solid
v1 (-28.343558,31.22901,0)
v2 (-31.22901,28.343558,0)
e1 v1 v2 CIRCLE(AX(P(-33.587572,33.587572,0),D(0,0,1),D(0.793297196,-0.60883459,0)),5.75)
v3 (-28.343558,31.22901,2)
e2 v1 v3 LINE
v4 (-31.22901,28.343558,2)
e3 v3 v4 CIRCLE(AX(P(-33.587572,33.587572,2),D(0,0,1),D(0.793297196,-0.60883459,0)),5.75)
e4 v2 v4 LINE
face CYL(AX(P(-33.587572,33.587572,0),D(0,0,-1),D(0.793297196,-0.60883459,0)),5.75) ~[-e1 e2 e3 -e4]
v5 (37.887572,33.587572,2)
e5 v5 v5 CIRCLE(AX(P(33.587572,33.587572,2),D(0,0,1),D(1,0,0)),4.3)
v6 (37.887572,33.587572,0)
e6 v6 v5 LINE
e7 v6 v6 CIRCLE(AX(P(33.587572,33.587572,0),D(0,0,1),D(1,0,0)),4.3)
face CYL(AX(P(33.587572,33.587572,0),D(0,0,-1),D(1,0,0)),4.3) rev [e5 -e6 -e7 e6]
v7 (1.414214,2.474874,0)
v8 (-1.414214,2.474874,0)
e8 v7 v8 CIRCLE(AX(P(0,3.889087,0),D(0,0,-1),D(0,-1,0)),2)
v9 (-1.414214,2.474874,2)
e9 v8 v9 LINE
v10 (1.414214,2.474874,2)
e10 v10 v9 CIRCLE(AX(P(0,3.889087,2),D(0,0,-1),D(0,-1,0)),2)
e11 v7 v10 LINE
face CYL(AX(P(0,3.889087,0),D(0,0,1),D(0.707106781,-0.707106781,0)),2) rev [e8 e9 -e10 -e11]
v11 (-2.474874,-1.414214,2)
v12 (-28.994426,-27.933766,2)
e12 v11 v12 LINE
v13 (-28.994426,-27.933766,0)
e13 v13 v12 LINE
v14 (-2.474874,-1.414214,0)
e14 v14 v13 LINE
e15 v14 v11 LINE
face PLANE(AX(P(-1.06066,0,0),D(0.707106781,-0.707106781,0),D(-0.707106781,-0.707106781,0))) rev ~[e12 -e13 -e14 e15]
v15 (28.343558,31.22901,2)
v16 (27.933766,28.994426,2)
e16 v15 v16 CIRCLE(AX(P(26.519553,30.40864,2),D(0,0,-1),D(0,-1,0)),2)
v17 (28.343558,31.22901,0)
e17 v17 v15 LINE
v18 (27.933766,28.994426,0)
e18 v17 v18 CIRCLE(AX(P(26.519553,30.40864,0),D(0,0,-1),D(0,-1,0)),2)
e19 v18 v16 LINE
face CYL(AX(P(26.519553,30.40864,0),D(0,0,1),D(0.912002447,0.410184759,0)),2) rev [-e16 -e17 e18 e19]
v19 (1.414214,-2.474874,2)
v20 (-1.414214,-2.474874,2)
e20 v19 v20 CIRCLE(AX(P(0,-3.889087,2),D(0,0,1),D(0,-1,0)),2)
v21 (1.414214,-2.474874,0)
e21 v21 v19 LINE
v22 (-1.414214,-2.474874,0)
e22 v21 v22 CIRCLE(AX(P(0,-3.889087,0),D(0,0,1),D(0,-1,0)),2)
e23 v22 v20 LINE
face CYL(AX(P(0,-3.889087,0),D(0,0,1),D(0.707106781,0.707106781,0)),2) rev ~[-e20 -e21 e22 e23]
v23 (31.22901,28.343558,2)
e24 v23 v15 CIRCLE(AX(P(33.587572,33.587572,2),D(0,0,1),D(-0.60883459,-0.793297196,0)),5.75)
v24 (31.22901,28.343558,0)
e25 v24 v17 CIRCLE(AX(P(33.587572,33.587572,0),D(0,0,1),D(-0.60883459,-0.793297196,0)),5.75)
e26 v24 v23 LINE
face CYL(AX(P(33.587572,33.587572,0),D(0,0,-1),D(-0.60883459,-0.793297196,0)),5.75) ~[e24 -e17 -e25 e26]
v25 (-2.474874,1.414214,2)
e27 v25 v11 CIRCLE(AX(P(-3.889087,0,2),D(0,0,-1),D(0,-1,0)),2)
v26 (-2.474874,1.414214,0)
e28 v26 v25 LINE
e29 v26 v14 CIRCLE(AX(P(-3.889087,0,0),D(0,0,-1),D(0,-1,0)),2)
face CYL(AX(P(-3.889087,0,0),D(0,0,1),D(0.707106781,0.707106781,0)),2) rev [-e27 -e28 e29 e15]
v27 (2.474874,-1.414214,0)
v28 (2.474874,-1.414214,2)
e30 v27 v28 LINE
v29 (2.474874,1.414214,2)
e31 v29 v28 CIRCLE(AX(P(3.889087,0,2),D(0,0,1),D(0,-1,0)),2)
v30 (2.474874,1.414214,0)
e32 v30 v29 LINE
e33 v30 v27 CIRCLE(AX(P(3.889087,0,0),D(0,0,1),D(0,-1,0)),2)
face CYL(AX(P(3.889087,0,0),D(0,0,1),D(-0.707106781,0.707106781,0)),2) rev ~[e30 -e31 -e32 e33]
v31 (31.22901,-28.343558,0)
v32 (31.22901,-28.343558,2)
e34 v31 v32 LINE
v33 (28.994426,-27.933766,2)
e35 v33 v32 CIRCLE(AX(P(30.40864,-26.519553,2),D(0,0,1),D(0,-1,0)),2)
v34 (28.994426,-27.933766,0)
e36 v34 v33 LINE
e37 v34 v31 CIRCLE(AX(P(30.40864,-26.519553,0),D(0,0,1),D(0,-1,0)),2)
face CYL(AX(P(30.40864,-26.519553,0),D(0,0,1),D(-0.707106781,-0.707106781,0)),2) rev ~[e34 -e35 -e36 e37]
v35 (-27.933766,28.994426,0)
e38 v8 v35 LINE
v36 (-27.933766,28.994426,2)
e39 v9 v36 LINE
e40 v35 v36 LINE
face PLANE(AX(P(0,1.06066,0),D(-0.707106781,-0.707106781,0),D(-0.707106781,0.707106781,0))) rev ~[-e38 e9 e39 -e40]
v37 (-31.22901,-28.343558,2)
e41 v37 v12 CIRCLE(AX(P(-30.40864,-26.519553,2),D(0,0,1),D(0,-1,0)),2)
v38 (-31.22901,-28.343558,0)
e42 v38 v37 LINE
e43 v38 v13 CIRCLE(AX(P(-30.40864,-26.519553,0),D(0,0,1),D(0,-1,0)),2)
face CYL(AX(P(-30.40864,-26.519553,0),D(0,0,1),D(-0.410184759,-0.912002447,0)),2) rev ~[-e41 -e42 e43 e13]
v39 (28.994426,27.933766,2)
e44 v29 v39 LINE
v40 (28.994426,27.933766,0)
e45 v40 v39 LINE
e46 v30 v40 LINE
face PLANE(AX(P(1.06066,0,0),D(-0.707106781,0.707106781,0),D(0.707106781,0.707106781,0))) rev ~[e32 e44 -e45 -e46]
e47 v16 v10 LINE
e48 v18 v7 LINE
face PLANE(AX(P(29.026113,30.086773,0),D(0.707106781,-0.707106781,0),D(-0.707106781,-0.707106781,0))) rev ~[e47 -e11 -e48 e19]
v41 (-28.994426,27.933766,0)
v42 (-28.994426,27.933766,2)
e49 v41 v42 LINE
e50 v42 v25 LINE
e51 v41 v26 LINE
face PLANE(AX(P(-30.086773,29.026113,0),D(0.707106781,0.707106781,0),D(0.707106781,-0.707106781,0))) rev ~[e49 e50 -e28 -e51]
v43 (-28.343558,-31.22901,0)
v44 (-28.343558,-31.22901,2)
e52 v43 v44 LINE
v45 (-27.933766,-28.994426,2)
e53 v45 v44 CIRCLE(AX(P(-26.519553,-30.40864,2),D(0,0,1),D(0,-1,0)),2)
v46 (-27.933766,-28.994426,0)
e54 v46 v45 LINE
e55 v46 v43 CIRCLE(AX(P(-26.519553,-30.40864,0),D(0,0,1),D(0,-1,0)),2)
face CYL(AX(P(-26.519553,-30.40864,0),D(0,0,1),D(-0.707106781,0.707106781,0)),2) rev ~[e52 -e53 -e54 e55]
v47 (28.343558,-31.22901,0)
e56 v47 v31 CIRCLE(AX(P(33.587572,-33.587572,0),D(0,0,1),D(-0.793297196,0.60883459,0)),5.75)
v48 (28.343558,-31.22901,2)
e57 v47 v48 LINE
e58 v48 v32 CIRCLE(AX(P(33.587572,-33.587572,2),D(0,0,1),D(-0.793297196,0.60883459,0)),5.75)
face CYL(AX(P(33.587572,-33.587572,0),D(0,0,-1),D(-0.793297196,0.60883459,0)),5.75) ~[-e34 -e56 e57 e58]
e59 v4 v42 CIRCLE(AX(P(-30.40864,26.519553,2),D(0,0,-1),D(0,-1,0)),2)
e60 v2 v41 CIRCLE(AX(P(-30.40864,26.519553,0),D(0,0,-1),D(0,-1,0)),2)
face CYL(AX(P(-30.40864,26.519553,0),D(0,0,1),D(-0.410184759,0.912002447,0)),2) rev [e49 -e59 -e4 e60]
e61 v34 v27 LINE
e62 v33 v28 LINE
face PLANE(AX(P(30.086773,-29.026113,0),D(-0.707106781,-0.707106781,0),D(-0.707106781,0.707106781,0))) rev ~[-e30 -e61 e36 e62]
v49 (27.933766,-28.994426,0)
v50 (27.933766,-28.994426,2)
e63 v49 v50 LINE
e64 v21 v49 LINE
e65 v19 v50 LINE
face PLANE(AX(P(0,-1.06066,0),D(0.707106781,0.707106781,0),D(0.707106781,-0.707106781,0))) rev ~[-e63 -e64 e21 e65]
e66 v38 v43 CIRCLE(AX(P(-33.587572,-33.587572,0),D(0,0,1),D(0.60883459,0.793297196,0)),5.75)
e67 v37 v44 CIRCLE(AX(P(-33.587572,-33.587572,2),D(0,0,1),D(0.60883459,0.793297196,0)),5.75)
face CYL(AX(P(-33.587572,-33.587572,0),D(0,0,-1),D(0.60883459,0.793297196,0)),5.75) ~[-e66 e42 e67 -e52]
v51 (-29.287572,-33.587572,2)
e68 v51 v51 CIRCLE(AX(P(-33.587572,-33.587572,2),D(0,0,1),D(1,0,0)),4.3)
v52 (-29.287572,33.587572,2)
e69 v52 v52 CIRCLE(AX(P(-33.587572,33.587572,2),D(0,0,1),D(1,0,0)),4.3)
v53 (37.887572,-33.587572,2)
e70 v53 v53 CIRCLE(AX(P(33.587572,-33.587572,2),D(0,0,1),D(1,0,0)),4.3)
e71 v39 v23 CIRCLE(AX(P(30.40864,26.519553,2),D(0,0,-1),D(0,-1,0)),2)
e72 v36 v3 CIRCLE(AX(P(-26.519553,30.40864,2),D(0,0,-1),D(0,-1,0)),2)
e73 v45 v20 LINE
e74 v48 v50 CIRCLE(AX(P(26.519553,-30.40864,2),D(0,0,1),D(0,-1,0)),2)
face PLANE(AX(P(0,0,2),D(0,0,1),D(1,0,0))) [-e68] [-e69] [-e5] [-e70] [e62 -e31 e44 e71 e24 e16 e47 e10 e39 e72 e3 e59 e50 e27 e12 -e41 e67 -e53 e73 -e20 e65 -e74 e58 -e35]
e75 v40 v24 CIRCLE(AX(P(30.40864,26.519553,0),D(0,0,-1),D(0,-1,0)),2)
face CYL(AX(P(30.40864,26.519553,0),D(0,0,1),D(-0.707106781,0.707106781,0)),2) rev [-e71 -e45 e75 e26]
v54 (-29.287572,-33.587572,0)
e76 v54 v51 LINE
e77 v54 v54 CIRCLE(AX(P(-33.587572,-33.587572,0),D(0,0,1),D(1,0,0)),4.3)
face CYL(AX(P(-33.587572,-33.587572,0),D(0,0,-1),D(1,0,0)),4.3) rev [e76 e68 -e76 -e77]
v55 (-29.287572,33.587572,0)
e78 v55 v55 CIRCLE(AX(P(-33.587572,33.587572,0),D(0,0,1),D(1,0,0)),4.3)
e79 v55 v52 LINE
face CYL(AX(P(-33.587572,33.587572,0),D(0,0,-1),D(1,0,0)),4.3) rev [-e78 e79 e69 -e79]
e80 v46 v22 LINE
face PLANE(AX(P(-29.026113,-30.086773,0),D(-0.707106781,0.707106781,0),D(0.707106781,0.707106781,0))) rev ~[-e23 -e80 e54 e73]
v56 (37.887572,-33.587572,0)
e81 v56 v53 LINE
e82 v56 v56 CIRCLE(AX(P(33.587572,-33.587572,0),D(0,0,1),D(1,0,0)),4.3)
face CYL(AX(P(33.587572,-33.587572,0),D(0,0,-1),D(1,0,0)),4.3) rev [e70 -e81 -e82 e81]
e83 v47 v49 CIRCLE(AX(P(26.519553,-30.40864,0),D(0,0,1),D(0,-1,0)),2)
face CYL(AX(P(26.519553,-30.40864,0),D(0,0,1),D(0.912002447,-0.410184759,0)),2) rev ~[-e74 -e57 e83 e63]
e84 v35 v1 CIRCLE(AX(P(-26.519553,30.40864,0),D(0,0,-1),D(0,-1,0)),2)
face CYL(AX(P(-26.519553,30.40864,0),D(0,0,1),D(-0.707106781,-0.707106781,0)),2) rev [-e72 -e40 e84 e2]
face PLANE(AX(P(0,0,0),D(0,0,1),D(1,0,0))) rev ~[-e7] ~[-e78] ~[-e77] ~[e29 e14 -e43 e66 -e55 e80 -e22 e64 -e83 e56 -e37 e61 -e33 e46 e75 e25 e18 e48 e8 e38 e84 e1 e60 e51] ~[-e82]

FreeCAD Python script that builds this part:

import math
import FreeCAD as App
import Part
import Sketcher

V = App.Vector


def edges_at(feature, points):
    """Names of the edges that pass closest to the given points."""
    edges = feature.Shape.Edges
    near = lambda p: min(range(len(edges)), key=lambda i: edges[i].distToShape(Part.Vertex(*p))[0])
    return sorted({f"Edge{near(p) + 1}" for p in points})

doc = App.newDocument("Part")
body = doc.addObject("PartDesign::Body", "Body")

sketch1 = body.newObject("Sketcher::SketchObject", "Sketch")
sketch1.AttachmentSupport = (doc.getObject("XY_Plane"), [""])
sketch1.MapMode = "FlatFace"
sketch1.addGeometry([
    Part.LineSegment(V(1.06066, 0, 0), V(30.086773, 29.026113, 0)),
    Part.ArcOfCircle(Part.Circle(V(33.587572, 33.587572, 0), V(0, 0, 1), 5.75), math.radians(-127.505284), math.radians(217.505284)),
    Part.LineSegment(V(29.026113, 30.086773, 0), V(0, 1.06066, 0)),
    Part.LineSegment(V(0, 1.06066, 0), V(-29.026113, 30.086773, 0)),
    Part.ArcOfCircle(Part.Circle(V(-33.587572, 33.587572, 0), V(0, 0, 1), 5.75), math.radians(-37.505284), math.radians(307.505284)),
    Part.LineSegment(V(-30.086773, 29.026113, 0), V(-1.06066, 0, 0)),
    Part.LineSegment(V(-1.06066, 0, 0), V(-30.086773, -29.026113, 0)),
    Part.ArcOfCircle(Part.Circle(V(-33.587572, -33.587572, 0), V(0, 0, 1), 5.75), math.radians(52.494716), math.radians(397.505284)),
    Part.LineSegment(V(-29.026113, -30.086773, 0), V(0, -1.06066, 0)),
    Part.LineSegment(V(0, -1.06066, 0), V(29.026113, -30.086773, 0)),
    Part.ArcOfCircle(Part.Circle(V(33.587572, -33.587572, 0), V(0, 0, 1), 5.75), math.radians(142.494716), math.radians(487.505284)),
    Part.LineSegment(V(30.086773, -29.026113, 0), V(1.06066, 0, 0)),
    Part.Circle(V(-33.587572, -33.587572, 0), V(0, 0, 1), 4.3),
    Part.Circle(V(33.587572, -33.587572, 0), V(0, 0, 1), 4.3),
    Part.Circle(V(-33.587572, 33.587572, 0), V(0, 0, 1), 4.3),
    Part.Circle(V(33.587572, 33.587572, 0), V(0, 0, 1), 4.3),
], False)
sketch1.addConstraint([
    Sketcher.Constraint("Coincident", 0, 2, 1, 1),
    Sketcher.Constraint("Coincident", 1, 2, 2, 1),
    Sketcher.Constraint("Coincident", 2, 2, 3, 1),
    Sketcher.Constraint("Coincident", 3, 2, 4, 1),
    Sketcher.Constraint("Coincident", 4, 2, 5, 1),
    Sketcher.Constraint("Coincident", 5, 2, 6, 1),
    Sketcher.Constraint("Coincident", 6, 2, 7, 1),
    Sketcher.Constraint("Coincident", 7, 2, 8, 1),
    Sketcher.Constraint("Coincident", 8, 2, 9, 1),
    Sketcher.Constraint("Coincident", 9, 2, 10, 1),
    Sketcher.Constraint("Coincident", 10, 2, 11, 1),
    Sketcher.Constraint("Coincident", 11, 2, 0, 1),
    Sketcher.Constraint("Coincident", 12, 3, 7, 3),
    Sketcher.Constraint("Coincident", 13, 3, 10, 3),
    Sketcher.Constraint("Coincident", 14, 3, 4, 3),
    Sketcher.Constraint("Coincident", 15, 3, 1, 3),
    Sketcher.Constraint("Equal", 1, 4),
    Sketcher.Constraint("Equal", 4, 7),
    Sketcher.Constraint("Equal", 7, 10),
    Sketcher.Constraint("Equal", 12, 13),
    Sketcher.Constraint("Equal", 13, 14),
    Sketcher.Constraint("Equal", 14, 15),
    Sketcher.Constraint("Symmetric", 1, 3, 7, 3, -1, 1),
    Sketcher.Constraint("Symmetric", 4, 3, 10, 3, -1, 1),
    Sketcher.Constraint("Symmetric", 2, 2, 8, 2, -1, 1),
    Sketcher.Constraint("Symmetric", 5, 2, 11, 2, -1, 1),
    Sketcher.Constraint("Symmetric", 1, 3, 4, 3, -2),
    Sketcher.Constraint("PointOnObject", 2, 2, -2),
    Sketcher.Constraint("PointOnObject", 5, 2, -1),
    Sketcher.Constraint("Parallel", 0, 2),
    Sketcher.Constraint("Perpendicular", 2, 3),
    Sketcher.Constraint("Parallel", 3, 5),
    Sketcher.Constraint("Perpendicular", 5, 6),
    Sketcher.Constraint("Parallel", 6, 8),
    Sketcher.Constraint("Perpendicular", 8, 9),
    Sketcher.Constraint("Parallel", 9, 11),
    Sketcher.Constraint("Horizontal", 1, 2, 3, 2),
    Sketcher.Constraint("Equal", 0, 2),
    Sketcher.Constraint("Diameter", 12, 8.6),
    Sketcher.Constraint("Radius", 1, 5.75),
    Sketcher.Constraint("DistanceX", 0, 2, 1, 3, 3.500799),
    Sketcher.Constraint("DistanceY", 1, 2, 1, 3, 3.500799),
    Sketcher.Constraint("DistanceX", -1, 1, 1, 3, 33.587572),
])
pad1 = body.newObject("PartDesign::Pad", "Pad")
pad1.Profile = sketch1
pad1.Length = 2
doc.recompute()

fillet = body.newObject("PartDesign::Fillet", "Fillet")
fillet.Base = (pad1, edges_at(pad1, [
    (30.087, 29.026, 1),
    (29.026, 30.087, 1),
    (1.061, 0, 1),
    (0, -1.061, 1),
    (-1.061, 0, 1),
    (0, 1.061, 1),
    (29.026, -30.087, 1),
    (30.087, -29.026, 1),
    (-30.087, 29.026, 1),
    (-29.026, -30.087, 1),
    (-29.026, 30.087, 1),
    (-30.087, -29.026, 1),
]))
fillet.Radius = 2

doc.recompute()
